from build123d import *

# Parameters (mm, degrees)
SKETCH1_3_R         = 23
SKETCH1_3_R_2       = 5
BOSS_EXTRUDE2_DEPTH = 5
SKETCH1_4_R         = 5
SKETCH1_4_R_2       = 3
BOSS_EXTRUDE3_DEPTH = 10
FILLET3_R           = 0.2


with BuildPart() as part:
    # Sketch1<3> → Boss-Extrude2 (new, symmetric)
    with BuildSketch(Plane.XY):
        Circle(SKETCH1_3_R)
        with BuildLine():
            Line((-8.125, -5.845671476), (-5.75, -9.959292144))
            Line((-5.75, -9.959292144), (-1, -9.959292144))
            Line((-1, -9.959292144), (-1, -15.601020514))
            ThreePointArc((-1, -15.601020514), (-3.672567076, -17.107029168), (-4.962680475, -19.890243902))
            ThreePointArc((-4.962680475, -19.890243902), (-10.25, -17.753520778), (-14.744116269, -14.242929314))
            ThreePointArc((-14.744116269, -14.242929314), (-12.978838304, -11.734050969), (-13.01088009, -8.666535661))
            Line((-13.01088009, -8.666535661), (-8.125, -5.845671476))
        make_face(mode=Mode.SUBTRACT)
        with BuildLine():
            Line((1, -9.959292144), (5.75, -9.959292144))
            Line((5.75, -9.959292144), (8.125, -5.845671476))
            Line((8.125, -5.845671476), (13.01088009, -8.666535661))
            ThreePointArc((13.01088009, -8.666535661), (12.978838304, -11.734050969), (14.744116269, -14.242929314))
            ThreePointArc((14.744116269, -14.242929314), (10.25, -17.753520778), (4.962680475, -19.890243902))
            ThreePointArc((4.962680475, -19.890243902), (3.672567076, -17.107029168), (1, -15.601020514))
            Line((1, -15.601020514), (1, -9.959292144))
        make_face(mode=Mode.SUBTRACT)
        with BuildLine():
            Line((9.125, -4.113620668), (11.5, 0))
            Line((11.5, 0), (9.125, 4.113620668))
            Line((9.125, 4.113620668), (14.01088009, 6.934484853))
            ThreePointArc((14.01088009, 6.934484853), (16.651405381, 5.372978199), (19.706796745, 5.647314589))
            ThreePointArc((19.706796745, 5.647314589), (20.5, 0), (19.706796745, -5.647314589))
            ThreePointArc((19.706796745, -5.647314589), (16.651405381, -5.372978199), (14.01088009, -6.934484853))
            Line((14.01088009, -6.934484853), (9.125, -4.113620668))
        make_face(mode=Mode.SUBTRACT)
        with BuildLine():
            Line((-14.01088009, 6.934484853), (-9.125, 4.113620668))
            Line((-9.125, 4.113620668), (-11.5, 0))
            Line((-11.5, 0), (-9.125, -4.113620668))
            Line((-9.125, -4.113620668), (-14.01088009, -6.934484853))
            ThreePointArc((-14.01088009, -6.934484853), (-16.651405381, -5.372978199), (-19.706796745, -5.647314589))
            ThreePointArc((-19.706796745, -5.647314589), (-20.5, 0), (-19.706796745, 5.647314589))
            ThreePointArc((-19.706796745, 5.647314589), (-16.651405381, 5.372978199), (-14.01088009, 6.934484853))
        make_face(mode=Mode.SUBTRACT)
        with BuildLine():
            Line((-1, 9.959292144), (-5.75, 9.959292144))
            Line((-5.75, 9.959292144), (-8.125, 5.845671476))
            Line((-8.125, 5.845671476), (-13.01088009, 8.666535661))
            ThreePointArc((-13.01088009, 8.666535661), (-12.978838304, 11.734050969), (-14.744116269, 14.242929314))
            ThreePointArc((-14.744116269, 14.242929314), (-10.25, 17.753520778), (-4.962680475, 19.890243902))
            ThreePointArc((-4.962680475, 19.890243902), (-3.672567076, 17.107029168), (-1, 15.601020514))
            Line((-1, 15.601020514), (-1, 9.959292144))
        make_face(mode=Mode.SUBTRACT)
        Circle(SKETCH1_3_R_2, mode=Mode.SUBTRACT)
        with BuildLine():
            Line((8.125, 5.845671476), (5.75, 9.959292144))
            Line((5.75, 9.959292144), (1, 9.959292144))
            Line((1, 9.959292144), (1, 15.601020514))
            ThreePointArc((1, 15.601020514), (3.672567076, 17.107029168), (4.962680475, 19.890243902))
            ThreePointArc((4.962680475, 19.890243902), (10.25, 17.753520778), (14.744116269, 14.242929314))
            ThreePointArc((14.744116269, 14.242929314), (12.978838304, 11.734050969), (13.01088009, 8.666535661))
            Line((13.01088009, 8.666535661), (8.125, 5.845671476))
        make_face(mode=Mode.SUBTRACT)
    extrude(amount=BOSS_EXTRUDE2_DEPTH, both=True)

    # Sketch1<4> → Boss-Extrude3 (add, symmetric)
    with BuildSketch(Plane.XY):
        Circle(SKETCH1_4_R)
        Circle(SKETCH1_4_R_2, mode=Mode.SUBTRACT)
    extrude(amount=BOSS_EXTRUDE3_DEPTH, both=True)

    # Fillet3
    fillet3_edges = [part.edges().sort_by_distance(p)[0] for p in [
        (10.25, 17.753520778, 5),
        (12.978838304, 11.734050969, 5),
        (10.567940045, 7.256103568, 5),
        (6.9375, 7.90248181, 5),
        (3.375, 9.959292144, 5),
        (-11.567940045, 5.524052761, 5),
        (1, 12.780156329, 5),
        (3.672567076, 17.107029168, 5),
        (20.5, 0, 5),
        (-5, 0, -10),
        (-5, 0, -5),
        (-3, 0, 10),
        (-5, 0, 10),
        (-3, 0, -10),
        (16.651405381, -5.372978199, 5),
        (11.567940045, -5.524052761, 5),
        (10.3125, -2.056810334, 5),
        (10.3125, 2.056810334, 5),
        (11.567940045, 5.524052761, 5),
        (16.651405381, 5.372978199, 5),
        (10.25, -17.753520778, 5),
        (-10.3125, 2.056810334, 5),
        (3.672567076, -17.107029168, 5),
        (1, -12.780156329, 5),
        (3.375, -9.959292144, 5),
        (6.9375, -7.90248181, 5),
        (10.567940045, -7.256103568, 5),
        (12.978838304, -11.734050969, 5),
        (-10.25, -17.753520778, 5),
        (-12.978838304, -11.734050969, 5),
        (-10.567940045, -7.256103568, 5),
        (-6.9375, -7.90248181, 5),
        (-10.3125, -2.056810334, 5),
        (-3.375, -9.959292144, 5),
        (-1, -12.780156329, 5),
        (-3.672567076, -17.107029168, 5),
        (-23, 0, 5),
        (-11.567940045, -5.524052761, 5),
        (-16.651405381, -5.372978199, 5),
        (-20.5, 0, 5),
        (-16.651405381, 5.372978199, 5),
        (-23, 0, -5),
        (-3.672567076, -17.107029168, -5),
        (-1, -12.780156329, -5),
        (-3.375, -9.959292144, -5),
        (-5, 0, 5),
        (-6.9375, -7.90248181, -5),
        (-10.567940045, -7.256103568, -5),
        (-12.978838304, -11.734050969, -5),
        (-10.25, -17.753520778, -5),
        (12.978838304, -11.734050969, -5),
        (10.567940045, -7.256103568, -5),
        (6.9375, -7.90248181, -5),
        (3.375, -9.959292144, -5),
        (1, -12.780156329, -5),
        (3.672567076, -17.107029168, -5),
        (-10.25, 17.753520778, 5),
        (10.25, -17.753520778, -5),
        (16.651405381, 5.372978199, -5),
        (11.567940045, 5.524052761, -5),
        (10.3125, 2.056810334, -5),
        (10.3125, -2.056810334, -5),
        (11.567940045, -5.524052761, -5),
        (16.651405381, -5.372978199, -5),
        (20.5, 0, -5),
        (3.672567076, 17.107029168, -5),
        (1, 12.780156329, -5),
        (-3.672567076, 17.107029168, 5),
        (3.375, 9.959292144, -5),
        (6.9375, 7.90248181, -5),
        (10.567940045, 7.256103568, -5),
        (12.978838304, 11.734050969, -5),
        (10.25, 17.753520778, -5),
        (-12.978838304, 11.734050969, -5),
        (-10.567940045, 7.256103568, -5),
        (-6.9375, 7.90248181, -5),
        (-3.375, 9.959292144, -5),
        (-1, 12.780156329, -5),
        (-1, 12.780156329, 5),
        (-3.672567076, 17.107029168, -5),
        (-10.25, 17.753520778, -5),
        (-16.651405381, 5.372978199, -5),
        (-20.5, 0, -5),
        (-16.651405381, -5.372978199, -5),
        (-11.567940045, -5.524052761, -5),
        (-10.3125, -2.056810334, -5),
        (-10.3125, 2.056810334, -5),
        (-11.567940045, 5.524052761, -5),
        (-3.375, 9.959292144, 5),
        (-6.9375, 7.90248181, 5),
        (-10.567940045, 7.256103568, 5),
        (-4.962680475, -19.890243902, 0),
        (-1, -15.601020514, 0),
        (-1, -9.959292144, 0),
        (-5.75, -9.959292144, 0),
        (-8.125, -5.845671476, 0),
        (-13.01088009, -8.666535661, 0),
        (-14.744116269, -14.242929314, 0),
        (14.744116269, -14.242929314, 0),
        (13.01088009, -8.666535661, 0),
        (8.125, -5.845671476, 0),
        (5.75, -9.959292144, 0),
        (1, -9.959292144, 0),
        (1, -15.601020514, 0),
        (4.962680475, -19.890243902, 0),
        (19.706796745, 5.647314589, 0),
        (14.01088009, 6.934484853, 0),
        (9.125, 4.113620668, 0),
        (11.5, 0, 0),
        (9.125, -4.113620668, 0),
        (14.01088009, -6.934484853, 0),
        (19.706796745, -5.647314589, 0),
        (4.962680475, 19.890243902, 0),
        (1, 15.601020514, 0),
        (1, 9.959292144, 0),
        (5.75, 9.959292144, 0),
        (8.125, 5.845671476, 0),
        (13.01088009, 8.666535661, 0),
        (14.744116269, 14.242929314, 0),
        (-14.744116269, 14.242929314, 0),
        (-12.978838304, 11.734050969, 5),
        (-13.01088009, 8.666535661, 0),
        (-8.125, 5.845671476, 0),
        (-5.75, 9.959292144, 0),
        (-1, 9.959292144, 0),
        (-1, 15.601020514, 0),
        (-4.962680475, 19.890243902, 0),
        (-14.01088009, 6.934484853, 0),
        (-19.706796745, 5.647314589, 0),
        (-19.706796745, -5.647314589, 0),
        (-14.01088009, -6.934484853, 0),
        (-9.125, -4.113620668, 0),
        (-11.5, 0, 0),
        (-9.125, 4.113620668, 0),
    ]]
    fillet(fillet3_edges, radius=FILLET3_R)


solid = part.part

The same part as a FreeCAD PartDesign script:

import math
import FreeCAD as App
import Part
import Sketcher
from FreeCAD import Vector
Q = App.Units.Quantity

doc = App.newDocument("Part")
body = doc.addObject("PartDesign::Body", "Body")

sketch1 = doc.addObject("Sketcher::SketchObject", "Sketch")
body.addObject(sketch1)
sketch1.AttachmentSupport = (doc.XY_Plane, [""])
sketch1.MapMode = "FlatFace"
sketch1.addGeometry([
    Part.Circle(Vector(0, 0, 0), Vector(0, 0, 1), 23),
    Part.LineSegment(Vector(-13, -8.7, 0), Vector(-8.1, -5.8, 0)),
    Part.LineSegment(Vector(-8.1, -5.8, 0), Vector(-5.8, -10, 0)),
    Part.LineSegment(Vector(-5.8, -10, 0), Vector(-1, -10, 0)),
    Part.LineSegment(Vector(-1, -10, 0), Vector(-1, -15.6, 0)),
    Part.ArcOfCircle(Part.Circle(Vector(0, -20.5, 0), Vector(0, 0, 1), 5), math.radians(102), math.radians(173)),
    Part.ArcOfCircle(Part.Circle(Vector(0, 0, 0), Vector(0, 0, 1), 20.5), math.radians(-136), math.radians(-104)),
    Part.ArcOfCircle(Part.Circle(Vector(-17.8, -10.2, 0), Vector(0, 0, 1), 5), math.radians(-53), math.radians(18)),
    Part.LineSegment(Vector(1, -15.6, 0), Vector(1, -10, 0)),
    Part.LineSegment(Vector(1, -10, 0), Vector(5.8, -10, 0)),
    Part.LineSegment(Vector(5.8, -10, 0), Vector(8.1, -5.8, 0)),
    Part.LineSegment(Vector(8.1, -5.8, 0), Vector(13, -8.7, 0)),
    Part.ArcOfCircle(Part.Circle(Vector(17.8, -10.2, 0), Vector(0, 0, 1), 5), math.radians(162), math.radians(233)),
    Part.ArcOfCircle(Part.Circle(Vector(0, 0, 0), Vector(0, 0, 1), 20.5), math.radians(-76), math.radians(-44)),
    Part.ArcOfCircle(Part.Circle(Vector(0, -20.5, 0), Vector(0, 0, 1), 5), math.radians(7), math.radians(78)),
    Part.ArcOfCircle(Part.Circle(Vector(-17.8, 10.3, 0), Vector(0, 0, 1), 5), math.radians(-113), math.radians(-42)),
    Part.LineSegment(Vector(-14, 6.9, 0), Vector(-9.1, 4.1, 0)),
    Part.LineSegment(Vector(-9.1, 4.1, 0), Vector(-11.5, 0, 0)),
    Part.LineSegment(Vector(-11.5, 0, 0), Vector(-9.1, -4.1, 0)),
    Part.LineSegment(Vector(-9.1, -4.1, 0), Vector(-14, -6.9, 0)),
    Part.ArcOfCircle(Part.Circle(Vector(-17.8, -10.3, 0), Vector(0, 0, 1), 5), math.radians(42), math.radians(113)),
    Part.ArcOfCircle(Part.Circle(Vector(0, 0, 0), Vector(0, 0, 1), 20.5), math.radians(164), math.radians(196)),
    Part.LineSegment(Vector(-1, 15.6, 0), Vector(-1, 10, 0)),
    Part.LineSegment(Vector(-1, 10, 0), Vector(-5.8, 10, 0)),
    Part.LineSegment(Vector(-5.8, 10, 0), Vector(-8.1, 5.8, 0)),
    Part.LineSegment(Vector(-8.1, 5.8, 0), Vector(-13, 8.7, 0)),
    Part.ArcOfCircle(Part.Circle(Vector(-17.8, 10.2, 0), Vector(0, 0, 1), 5), math.radians(-18), math.radians(53)),
    Part.ArcOfCircle(Part.Circle(Vector(0, 0, 0), Vector(0, 0, 1), 20.5), math.radians(104), math.radians(136)),
    Part.ArcOfCircle(Part.Circle(Vector(0, 20.5, 0), Vector(0, 0, 1), 5), math.radians(-173), math.radians(-102)),
    Part.Circle(Vector(0, 0, 0), Vector(0, 0, 1), 5),
    Part.LineSegment(Vector(14, -6.9, 0), Vector(9.1, -4.1, 0)),
    Part.LineSegment(Vector(9.1, -4.1, 0), Vector(11.5, 0, 0)),
    Part.LineSegment(Vector(11.5, 0, 0), Vector(9.1, 4.1, 0)),
    Part.LineSegment(Vector(9.1, 4.1, 0), Vector(14, 6.9, 0)),
    Part.ArcOfCircle(Part.Circle(Vector(17.8, 10.3, 0), Vector(0, 0, 1), 5), math.radians(-138), math.radians(-67)),
    Part.ArcOfCircle(Part.Circle(Vector(0, 0, 0), Vector(0, 0, 1), 20.5), math.radians(-16), math.radians(16)),
    Part.ArcOfCircle(Part.Circle(Vector(17.8, -10.3, 0), Vector(0, 0, 1), 5), math.radians(67), math.radians(138)),
    Part.LineSegment(Vector(13, 8.7, 0), Vector(8.1, 5.8, 0)),
    Part.LineSegment(Vector(8.1, 5.8, 0), Vector(5.8, 10, 0)),
    Part.LineSegment(Vector(5.8, 10, 0), Vector(1, 10, 0)),
    Part.LineSegment(Vector(1, 10, 0), Vector(1, 15.6, 0)),
    Part.ArcOfCircle(Part.Circle(Vector(0, 20.5, 0), Vector(0, 0, 1), 5), math.radians(-78), math.radians(-7)),
    Part.ArcOfCircle(Part.Circle(Vector(0, 0, 0), Vector(0, 0, 1), 20.5), math.radians(44), math.radians(76)),
    Part.ArcOfCircle(Part.Circle(Vector(17.8, 10.2, 0), Vector(0, 0, 1), 5), math.radians(127), math.radians(198)),
], False)
sketch1.addConstraint([
    Sketcher.Constraint("Coincident", 1, 2, 2, 1),
    Sketcher.Constraint("Coincident", 2, 2, 3, 1),
    Sketcher.Constraint("Coincident", 3, 2, 4, 1),
    Sketcher.Constraint("Coincident", 4, 2, 5, 1),
    Sketcher.Constraint("Coincident", 5, 2, 6, 2),
    Sketcher.Constraint("Coincident", 6, 1, 7, 1),
    Sketcher.Constraint("Coincident", 7, 2, 1, 1),
    Sketcher.Constraint("Coincident", 8, 2, 9, 1),
    Sketcher.Constraint("Coincident", 9, 2, 10, 1),
    Sketcher.Constraint("Coincident", 10, 2, 11, 1),
    Sketcher.Constraint("Coincident", 11, 2, 12, 1),
    Sketcher.Constraint("Coincident", 12, 2, 13, 2),
    Sketcher.Constraint("Coincident", 13, 1, 14, 1),
    Sketcher.Constraint("Coincident", 14, 2, 8, 1),
    Sketcher.Constraint("Coincident", 15, 2, 16, 1),
    Sketcher.Constraint("Coincident", 16, 2, 17, 1),
    Sketcher.Constraint("Coincident", 17, 2, 18, 1),
    Sketcher.Constraint("Coincident", 18, 2, 19, 1),
    Sketcher.Constraint("Coincident", 19, 2, 20, 1),
    Sketcher.Constraint("Coincident", 20, 2, 21, 2),
    Sketcher.Constraint("Coincident", 21, 1, 15, 1),
    Sketcher.Constraint("Coincident", 22, 2, 23, 1),
    Sketcher.Constraint("Coincident", 23, 2, 24, 1),
    Sketcher.Constraint("Coincident", 24, 2, 25, 1),
    Sketcher.Constraint("Coincident", 25, 2, 26, 1),
    Sketcher.Constraint("Coincident", 26, 2, 27, 2),
    Sketcher.Constraint("Coincident", 27, 1, 28, 1),
    Sketcher.Constraint("Coincident", 28, 2, 22, 1),
    Sketcher.Constraint("Coincident", 30, 2, 31, 1),
    Sketcher.Constraint("Coincident", 31, 2, 32, 1),
    Sketcher.Constraint("Coincident", 32, 2, 33, 1),
    Sketcher.Constraint("Coincident", 33, 2, 34, 1),
    Sketcher.Constraint("Coincident", 34, 2, 35, 2),
    Sketcher.Constraint("Coincident", 35, 1, 36, 1),
    Sketcher.Constraint("Coincident", 36, 2, 30, 1),
    Sketcher.Constraint("Coincident", 37, 2, 38, 1),
    Sketcher.Constraint("Coincident", 38, 2, 39, 1),
    Sketcher.Constraint("Coincident", 39, 2, 40, 1),
    Sketcher.Constraint("Coincident", 40, 2, 41, 1),
    Sketcher.Constraint("Coincident", 41, 2, 42, 2),
    Sketcher.Constraint("Coincident", 42, 1, 43, 1),
    Sketcher.Constraint("Coincident", 43, 2, 37, 1),
    Sketcher.Constraint("Horizontal", 3),
    Sketcher.Constraint("Vertical", 4),
    Sketcher.Constraint("Vertical", 8),
    Sketcher.Constraint("Horizontal", 9),
    Sketcher.Constraint("Vertical", 22),
    Sketcher.Constraint("Horizontal", 23),
    Sketcher.Constraint("Horizontal", 39),
    Sketcher.Constraint("Vertical", 40),
    Sketcher.Constraint("Coincident", 0, 3, -1, 1),
    Sketcher.Constraint("Coincident", 6, 3, -1, 1),
    Sketcher.Constraint("Coincident", 13, 3, -1, 1),
    Sketcher.Constraint("Coincident", 21, 3, -1, 1),
    Sketcher.Constraint("Coincident", 27, 3, -1, 1),
    Sketcher.Constraint("Coincident", 29, 3, -1, 1),
    Sketcher.Constraint("Coincident", 35, 3, -1, 1),
    Sketcher.Constraint("Coincident", 42, 3, -1, 1),
    Sketcher.Constraint("Coincident", 14, 3, 5, 3),
    Sketcher.Constraint("Coincident", 20, 3, 7, 3),
    Sketcher.Constraint("Coincident", 26, 3, 15, 3),
    Sketcher.Constraint("Coincident", 36, 3, 12, 3),
    Sketcher.Constraint("Coincident", 41, 3, 28, 3),
    Sketcher.Constraint("Coincident", 43, 3, 34, 3),
    Sketcher.Constraint("Equal", 5, 7),
    Sketcher.Constraint("Equal", 7, 12),
    Sketcher.Constraint("Equal", 6, 13),
    Sketcher.Constraint("Equal", 12, 14),
    Sketcher.Constraint("Equal", 14, 15),
    Sketcher.Constraint("Equal", 15, 20),
    Sketcher.Constraint("Equal", 13, 21),
    Sketcher.Constraint("Equal", 20, 26),
    Sketcher.Constraint("Equal", 21, 27),
    Sketcher.Constraint("Equal", 26, 28),
    Sketcher.Constraint("Equal", 28, 29),
    Sketcher.Constraint("Equal", 29, 34),
    Sketcher.Constraint("Equal", 27, 35),
    Sketcher.Constraint("Equal", 34, 36),
    Sketcher.Constraint("Equal", 36, 41),
    Sketcher.Constraint("Equal", 35, 42),
    Sketcher.Constraint("Equal", 41, 43),
    Sketcher.Constraint("Symmetric", 12, 3, 15, 3, -1, 1),
    Sketcher.Constraint("Symmetric", 5, 3, 28, 3, -1, 1),
    Sketcher.Constraint("Symmetric", 7, 3, 34, 3, -1, 1),
    Sketcher.Constraint("Symmetric", 8, 2, 22, 2, -1, 1),
    Sketcher.Constraint("Symmetric", 10, 2, 24, 2, -1, 1),
    Sketcher.Constraint("Symmetric", 16, 2, 30, 2, -1, 1),
    Sketcher.Constraint("Symmetric", 17, 2, 31, 2, -1, 1),
    Sketcher.Constraint("Symmetric", 18, 2, 32, 2, -1, 1),
    Sketcher.Constraint("Symmetric", 1, 2, 37, 2, -1, 1),
    Sketcher.Constraint("Symmetric", 2, 2, 38, 2, -1, 1),
    Sketcher.Constraint("Symmetric", 7, 3, 12, 3, -2),
    Sketcher.Constraint("Symmetric", 3, 2, 8, 2, -2),
    Sketcher.Constraint("Symmetric", 1, 2, 10, 2, -2),
    Sketcher.Constraint("Symmetric", 18, 2, 30, 2, -2),
    Sketcher.Constraint("Symmetric", 28, 2, 40, 2, -2),
    Sketcher.Constraint("PointOnObject", 17, 2, -1),
    Sketcher.Constraint("Perpendicular", 1, 2),
    Sketcher.Constraint("Perpendicular", 10, 11),
    Sketcher.Constraint("Parallel", 11, 16),
    Sketcher.Constraint("Perpendicular", 16, 17),
    Sketcher.Constraint("Parallel", 2, 18),
    Sketcher.Constraint("Perpendicular", 18, 19),
    Sketcher.Constraint("Parallel", 17, 24),
    Sketcher.Constraint("Perpendicular", 24, 25),
    Sketcher.Constraint("Parallel", 25, 30),
    Sketcher.Constraint("Perpendicular", 32, 33),
    Sketcher.Constraint("Parallel", 33, 37),
    Sketcher.Constraint("Equal", 11, 16),
    Sketcher.Constraint("Equal", 10, 17),
    Sketcher.Constraint("Diameter", 0, 46.0),
    Sketcher.Constraint("Diameter", 29, 10.0),
    Sketcher.Constraint("Radius", 6, 20.5),
    Sketcher.Constraint("Angle", 1, Q("30 deg")),
    Sketcher.Constraint("DistanceX", 3, 2, -1, 1, 1.0),
    Sketcher.Constraint("DistanceX", 3, 1, 3, 2, 4.75),
    Sketcher.Constraint("DistanceY", 5, 3, -1, 1, 20.5),
    Sketcher.Constraint("DistanceX", 17, 2, -1, 1, 11.5),
    Sketcher.Constraint("Distance", 2, 4.75),
    Sketcher.Constraint("DistanceY", 7, 3, -1, 1, 10.25),
    Sketcher.Constraint("DistanceY", 4, 2, 4, 1, 5.641728),
])
pad1 = doc.addObject("PartDesign::Pad", "Pad")
body.addObject(pad1)
pad1.Profile = sketch1
pad1.Length = 10
pad1.Midplane = True

sketch2 = doc.addObject("Sketcher::SketchObject", "Sketch001")
body.addObject(sketch2)
sketch2.AttachmentSupport = (doc.XY_Plane, [""])
sketch2.MapMode = "FlatFace"
sketch2.addGeometry([
    Part.Circle(Vector(0, 0, 0), Vector(0, 0, 1), 5),
    Part.Circle(Vector(0, 0, 0), Vector(0, 0, 1), 3),
], False)
sketch2.addConstraint([
    Sketcher.Constraint("Coincident", 0, 3, -1, 1),
    Sketcher.Constraint("Coincident", 1, 3, -1, 1),
    Sketcher.Constraint("Diameter", 0, 10.0),
    Sketcher.Constraint("Diameter", 1, 6.0),
])
pad2 = doc.addObject("PartDesign::Pad", "Pad001")
body.addObject(pad2)
pad2.Profile = sketch2
pad2.Length = 20
pad2.Midplane = True
doc.recompute()

fillet = doc.addObject("PartDesign::Fillet", "Fillet")
body.addObject(fillet)
fillet.Base = (pad2, ["Edge1"])
fillet.UseAllEdges = True
fillet.Radius = 0.2

doc.recompute()
